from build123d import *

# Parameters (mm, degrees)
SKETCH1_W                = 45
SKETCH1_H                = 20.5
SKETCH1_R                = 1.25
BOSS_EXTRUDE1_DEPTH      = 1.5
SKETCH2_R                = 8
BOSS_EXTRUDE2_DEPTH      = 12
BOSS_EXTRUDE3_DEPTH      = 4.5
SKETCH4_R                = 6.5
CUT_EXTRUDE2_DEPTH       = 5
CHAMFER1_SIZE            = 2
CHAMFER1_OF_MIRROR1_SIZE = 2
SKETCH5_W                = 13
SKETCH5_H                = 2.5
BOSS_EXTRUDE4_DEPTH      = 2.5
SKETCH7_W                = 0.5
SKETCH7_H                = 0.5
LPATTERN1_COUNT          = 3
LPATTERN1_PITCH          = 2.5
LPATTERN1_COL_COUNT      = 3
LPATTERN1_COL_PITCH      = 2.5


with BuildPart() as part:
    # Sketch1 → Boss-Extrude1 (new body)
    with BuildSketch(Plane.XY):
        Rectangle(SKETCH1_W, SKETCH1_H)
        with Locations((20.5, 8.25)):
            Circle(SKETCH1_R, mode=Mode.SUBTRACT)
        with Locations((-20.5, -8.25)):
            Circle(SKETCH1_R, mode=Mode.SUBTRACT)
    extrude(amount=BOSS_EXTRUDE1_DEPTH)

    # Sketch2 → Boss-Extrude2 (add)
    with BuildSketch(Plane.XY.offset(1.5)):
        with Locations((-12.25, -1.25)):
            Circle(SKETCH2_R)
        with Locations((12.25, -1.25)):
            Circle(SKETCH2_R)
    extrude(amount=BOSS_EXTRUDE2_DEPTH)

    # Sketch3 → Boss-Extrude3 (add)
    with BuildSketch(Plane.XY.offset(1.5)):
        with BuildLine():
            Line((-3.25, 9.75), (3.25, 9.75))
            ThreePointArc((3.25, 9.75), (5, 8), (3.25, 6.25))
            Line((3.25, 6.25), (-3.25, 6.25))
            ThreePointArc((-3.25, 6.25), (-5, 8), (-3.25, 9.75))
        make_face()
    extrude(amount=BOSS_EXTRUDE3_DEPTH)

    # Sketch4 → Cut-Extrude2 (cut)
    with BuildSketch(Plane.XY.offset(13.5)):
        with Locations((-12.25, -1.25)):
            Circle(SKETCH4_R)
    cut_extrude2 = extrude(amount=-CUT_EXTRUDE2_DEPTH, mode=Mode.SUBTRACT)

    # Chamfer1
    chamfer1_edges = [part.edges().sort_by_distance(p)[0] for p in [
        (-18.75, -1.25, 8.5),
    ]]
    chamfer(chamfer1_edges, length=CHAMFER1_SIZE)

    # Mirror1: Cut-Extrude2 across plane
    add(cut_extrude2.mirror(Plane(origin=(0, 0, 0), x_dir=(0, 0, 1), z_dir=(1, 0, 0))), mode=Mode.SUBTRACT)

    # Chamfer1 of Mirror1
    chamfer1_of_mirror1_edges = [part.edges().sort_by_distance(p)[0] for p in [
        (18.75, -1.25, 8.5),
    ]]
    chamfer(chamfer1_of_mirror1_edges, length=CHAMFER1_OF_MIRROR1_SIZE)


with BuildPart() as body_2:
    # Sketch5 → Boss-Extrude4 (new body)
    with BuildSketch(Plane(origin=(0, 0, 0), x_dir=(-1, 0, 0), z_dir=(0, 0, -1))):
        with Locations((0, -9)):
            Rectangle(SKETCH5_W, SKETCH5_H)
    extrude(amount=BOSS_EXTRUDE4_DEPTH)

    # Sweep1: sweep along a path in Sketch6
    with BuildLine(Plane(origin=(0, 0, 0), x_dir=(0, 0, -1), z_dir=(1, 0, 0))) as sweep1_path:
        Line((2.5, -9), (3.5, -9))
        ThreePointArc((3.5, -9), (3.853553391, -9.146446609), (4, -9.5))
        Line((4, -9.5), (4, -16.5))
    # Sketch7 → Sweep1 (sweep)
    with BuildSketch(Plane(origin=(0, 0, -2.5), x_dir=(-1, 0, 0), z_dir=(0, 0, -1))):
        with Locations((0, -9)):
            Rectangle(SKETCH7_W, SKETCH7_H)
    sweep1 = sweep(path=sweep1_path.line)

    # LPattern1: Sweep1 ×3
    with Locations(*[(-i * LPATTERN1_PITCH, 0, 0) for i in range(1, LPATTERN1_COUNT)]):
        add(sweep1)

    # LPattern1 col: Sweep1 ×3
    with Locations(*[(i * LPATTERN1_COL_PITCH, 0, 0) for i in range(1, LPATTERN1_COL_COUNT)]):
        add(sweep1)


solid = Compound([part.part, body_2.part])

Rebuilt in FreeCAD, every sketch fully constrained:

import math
import FreeCAD as App
import Part
import Sketcher
Q = App.Units.Quantity


def edges_at(feature, points):
    """Names of the edges that pass closest to the given points."""
    edges = feature.Shape.Edges
    near = lambda p: min(range(len(edges)), key=lambda i: edges[i].distToShape(Part.Vertex(*p))[0])
    return sorted({f"Edge{near(p) + 1}" for p in points})

doc = App.newDocument("Part")
body = doc.addObject("PartDesign::Body", "Body")

sketch1 = doc.addObject("Sketcher::SketchObject", "Sketch")
body.addObject(sketch1)
sketch1.AttachmentSupport = (doc.XY_Plane, [""])
sketch1.MapMode = "FlatFace"
sketch1.addGeometry(Part.LineSegment(App.Vector(-22.5, 10.2, 0), App.Vector(-22.5, -10.2, 0)), False)
sketch1.addGeometry(Part.LineSegment(App.Vector(-22.5, -10.2, 0), App.Vector(22.5, -10.2, 0)), False)
sketch1.addGeometry(Part.LineSegment(App.Vector(22.5, -10.2, 0), App.Vector(22.5, 10.2, 0)), False)
sketch1.addGeometry(Part.LineSegment(App.Vector(22.5, 10.2, 0), App.Vector(-22.5, 10.2, 0)), False)
sketch1.addGeometry(Part.Circle(App.Vector(-20.5, -8.2, 0), App.Vector(0, 0, 1), 1.2), False)
sketch1.addGeometry(Part.Circle(App.Vector(20.5, 8.2, 0), App.Vector(0, 0, 1), 1.2), False)
sketch1.addConstraint(Sketcher.Constraint("Coincident", 0, 2, 1, 1))
sketch1.addConstraint(Sketcher.Constraint("Coincident", 1, 2, 2, 1))
sketch1.addConstraint(Sketcher.Constraint("Coincident", 2, 2, 3, 1))
sketch1.addConstraint(Sketcher.Constraint("Coincident", 3, 2, 0, 1))
sketch1.addConstraint(Sketcher.Constraint("Vertical", 0))
sketch1.addConstraint(Sketcher.Constraint("Horizontal", 1))
sketch1.addConstraint(Sketcher.Constraint("Vertical", 2))
sketch1.addConstraint(Sketcher.Constraint("Horizontal", 3))
sketch1.addConstraint(Sketcher.Constraint("Equal", 4, 5))
sketch1.addConstraint(Sketcher.Constraint("Symmetric", 4, 3, 5, 3, -1, 1))
sketch1.addConstraint(Sketcher.Constraint("Symmetric", 0, 2, 2, 2, -1, 1))
sketch1.addConstraint(Sketcher.Constraint("Diameter", 4, Q("2.5 mm")))
sketch1.addConstraint(Sketcher.Constraint("DistanceX", 1, 1, 1, 2, Q("45 mm")))
sketch1.addConstraint(Sketcher.Constraint("DistanceY", 0, 2, 0, 1, Q("20.5 mm")))
sketch1.addConstraint(Sketcher.Constraint("DistanceX", 4, 3, 5, 3, Q("41 mm")))
sketch1.addConstraint(Sketcher.Constraint("DistanceY", 0, 2, 4, 3, Q("2 mm")))
pad1 = doc.addObject("PartDesign::Pad", "Pad")
body.addObject(pad1)
pad1.Profile = sketch1
pad1.Length = 1.5

sketch2 = doc.addObject("Sketcher::SketchObject", "Sketch001")
body.addObject(sketch2)
sketch2.AttachmentSupport = (doc.XY_Plane, [""])
sketch2.MapMode = "FlatFace"
sketch2.AttachmentOffset = App.Placement(App.Vector(0, 0, 1.5), App.Rotation())
sketch2.addGeometry(Part.Circle(App.Vector(-12, -1, 0), App.Vector(0, 0, 1), 8), False)
sketch2.addGeometry(Part.Circle(App.Vector(12, -1, 0), App.Vector(0, 0, 1), 8), False)
sketch2.addConstraint(Sketcher.Constraint("Equal", 0, 1))
sketch2.addConstraint(Sketcher.Constraint("Symmetric", 0, 3, 1, 3, -2))
sketch2.addConstraint(Sketcher.Constraint("Diameter", 0, Q("16 mm")))
sketch2.addConstraint(Sketcher.Constraint("DistanceX", 0, 3, 1, 3, Q("24.5 mm")))
sketch2.addConstraint(Sketcher.Constraint("DistanceY", 0, 3, -1, 1, Q("1.25 mm")))
pad2 = doc.addObject("PartDesign::Pad", "Pad001")
body.addObject(pad2)
pad2.Profile = sketch2
pad2.Length = 12

sketch3 = doc.addObject("Sketcher::SketchObject", "Sketch002")
body.addObject(sketch3)
sketch3.AttachmentSupport = (doc.XY_Plane, [""])
sketch3.MapMode = "FlatFace"
sketch3.AttachmentOffset = App.Placement(App.Vector(0, 0, 1.5), App.Rotation())
sketch3.addGeometry(Part.LineSegment(App.Vector(3.2, 9.8, 0), App.Vector(-3.2, 9.8, 0)), False)
sketch3.addGeometry(Part.ArcOfCircle(Part.Circle(App.Vector(-3.2, 8, 0), App.Vector(0, 0, 1), 1.8), math.radians(90), math.radians(270)), False)
sketch3.addGeometry(Part.LineSegment(App.Vector(-3.2, 6.2, 0), App.Vector(3.2, 6.2, 0)), False)
sketch3.addGeometry(Part.ArcOfCircle(Part.Circle(App.Vector(3.2, 8, 0), App.Vector(0, 0, 1), 1.8), math.radians(-90), math.radians(90)), False)
sketch3.addConstraint(Sketcher.Constraint("Tangent", 0, 2, 1, 1))
sketch3.addConstraint(Sketcher.Constraint("Tangent", 1, 2, 2, 1))
sketch3.addConstraint(Sketcher.Constraint("Tangent", 2, 2, 3, 1))
sketch3.addConstraint(Sketcher.Constraint("Tangent", 3, 2, 0, 1))
sketch3.addConstraint(Sketcher.Constraint("Horizontal", 0))
sketch3.addConstraint(Sketcher.Constraint("Horizontal", 2))
sketch3.addConstraint(Sketcher.Constraint("Radius", 1, Q("1.75 mm")))
sketch3.addConstraint(Sketcher.Constraint("DistanceX", 0, 2, 0, 1, Q("6.5 mm")))
sketch3.addConstraint(Sketcher.Constraint("DistanceY", -1, 1, 1, 3, Q("8 mm")))
sketch3.addConstraint(Sketcher.Constraint("DistanceX", 1, 3, -1, 1, Q("3.25 mm")))
pad3 = doc.addObject("PartDesign::Pad", "Pad002")
body.addObject(pad3)
pad3.Profile = sketch3
pad3.Length = 4.5

sketch4 = doc.addObject("Sketcher::SketchObject", "Sketch003")
body.addObject(sketch4)
sketch4.AttachmentSupport = (doc.XY_Plane, [""])
sketch4.MapMode = "FlatFace"
sketch4.AttachmentOffset = App.Placement(App.Vector(0, 0, 13.5), App.Rotation())
sketch4.addGeometry(Part.Circle(App.Vector(-12, -1, 0), App.Vector(0, 0, 1), 6), False)
sketch4.addConstraint(Sketcher.Constraint("Diameter", 0, Q("13 mm")))
sketch4.addConstraint(Sketcher.Constraint("DistanceX", 0, 3, -1, 1, Q("12.25 mm")))
sketch4.addConstraint(Sketcher.Constraint("DistanceY", 0, 3, -1, 1, Q("1.25 mm")))
pocket1 = doc.addObject("PartDesign::Pocket", "Pocket")
body.addObject(pocket1)
pocket1.Profile = sketch4
pocket1.Length = 5
doc.recompute()

chamfer = doc.addObject("PartDesign::Chamfer", "Chamfer")
body.addObject(chamfer)
chamfer.Base = (pocket1, edges_at(pocket1, [(-18.75, -1.25, 8.5)]))
chamfer.Size = 2
doc.recompute()

mirrored = doc.addObject("PartDesign::Mirrored", "Mirrored")
body.addObject(mirrored)
mirrored.Originals = [pocket1]
mirrored.MirrorPlane = (doc.YZ_Plane, [""])
body.Tip = mirrored
doc.recompute()

chamfer2 = doc.addObject("PartDesign::Chamfer", "Chamfer001")
body.addObject(chamfer2)
chamfer2.Base = (mirrored, edges_at(mirrored, [(18.75, -1.25, 8.5)]))
chamfer2.Size = 2
body2 = doc.addObject("PartDesign::Body", "Body001")

sketch5 = doc.addObject("Sketcher::SketchObject", "Sketch004")
body2.addObject(sketch5)
sketch5.AttachmentSupport = (doc.getObject("XY_Plane001"), [""])
sketch5.MapMode = "FlatFace"
sketch5.addGeometry(Part.LineSegment(App.Vector(6.5, -7.8, 0), App.Vector(6.5, -10.2, 0)), False)
sketch5.addGeometry(Part.LineSegment(App.Vector(6.5, -10.2, 0), App.Vector(-6.5, -10.2, 0)), False)
sketch5.addGeometry(Part.LineSegment(App.Vector(-6.5, -10.2, 0), App.Vector(-6.5, -7.8, 0)), False)
sketch5.addGeometry(Part.LineSegment(App.Vector(-6.5, -7.8, 0), App.Vector(6.5, -7.8, 0)), False)
sketch5.addConstraint(Sketcher.Constraint("Coincident", 0, 2, 1, 1))
sketch5.addConstraint(Sketcher.Constraint("Coincident", 1, 2, 2, 1))
sketch5.addConstraint(Sketcher.Constraint("Coincident", 2, 2, 3, 1))
sketch5.addConstraint(Sketcher.Constraint("Coincident", 3, 2, 0, 1))
sketch5.addConstraint(Sketcher.Constraint("Vertical", 0))
sketch5.addConstraint(Sketcher.Constraint("Horizontal", 1))
sketch5.addConstraint(Sketcher.Constraint("Vertical", 2))
sketch5.addConstraint(Sketcher.Constraint("Horizontal", 3))
sketch5.addConstraint(Sketcher.Constraint("DistanceX", 1, 2, 1, 1, Q("13 mm")))
sketch5.addConstraint(Sketcher.Constraint("DistanceY", 0, 2, 0, 1, Q("2.5 mm")))
sketch5.addConstraint(Sketcher.Constraint("DistanceX", -1, 1, 0, 2, Q("6.5 mm")))
sketch5.addConstraint(Sketcher.Constraint("DistanceY", 0, 2, -1, 1, Q("10.25 mm")))
pad4 = doc.addObject("PartDesign::Pad", "Pad003")
body2.addObject(pad4)
pad4.Profile = sketch5
pad4.Length = 2.5
pad4.Reversed = True

sketch6 = doc.addObject("Sketcher::SketchObject", "Sketch005")
body2.addObject(sketch6)
sketch6.AttachmentSupport = (doc.getObject("XY_Plane001"), [""])
sketch6.MapMode = "FlatFace"
sketch6.AttachmentOffset = App.Placement(App.Vector(0, 0, -2.5), App.Rotation())
sketch6.addGeometry(Part.LineSegment(App.Vector(0.2, -8.8, 0), App.Vector(0.2, -9.2, 0)), False)
sketch6.addGeometry(Part.LineSegment(App.Vector(0.2, -9.2, 0), App.Vector(-0.2, -9.2, 0)), False)
sketch6.addGeometry(Part.LineSegment(App.Vector(-0.2, -9.2, 0), App.Vector(-0.2, -8.8, 0)), False)
sketch6.addGeometry(Part.LineSegment(App.Vector(-0.2, -8.8, 0), App.Vector(0.2, -8.8, 0)), False)
sketch6.addConstraint(Sketcher.Constraint("Coincident", 0, 2, 1, 1))
sketch6.addConstraint(Sketcher.Constraint("Coincident", 1, 2, 2, 1))
sketch6.addConstraint(Sketcher.Constraint("Coincident", 2, 2, 3, 1))
sketch6.addConstraint(Sketcher.Constraint("Coincident", 3, 2, 0, 1))
sketch6.addConstraint(Sketcher.Constraint("Vertical", 0))
sketch6.addConstraint(Sketcher.Constraint("Horizontal", 1))
sketch6.addConstraint(Sketcher.Constraint("Vertical", 2))
sketch6.addConstraint(Sketcher.Constraint("Horizontal", 3))
sketch6.addConstraint(Sketcher.Constraint("Equal", 3, 0))
sketch6.addConstraint(Sketcher.Constraint("DistanceX", 1, 2, 1, 1, Q("0.5 mm")))
sketch6.addConstraint(Sketcher.Constraint("DistanceX", -1, 1, 0, 2, Q("0.25 mm")))
sketch6.addConstraint(Sketcher.Constraint("DistanceY", 0, 2, -1, 1, Q("9.25 mm")))

sketch7 = doc.addObject("Sketcher::SketchObject", "Sketch006")
body2.addObject(sketch7)
sketch7.AttachmentSupport = (doc.getObject("YZ_Plane001"), [""])
sketch7.MapMode = "FlatFace"
sketch7.addGeometry(Part.LineSegment(App.Vector(-9, -2.5, 0), App.Vector(-9, -3.5, 0)), False)
sketch7.addGeometry(Part.ArcOfCircle(Part.Circle(App.Vector(-9.5, -3.5, 0), App.Vector(0, 0, 1), 0.5), math.radians(-90), math.radians(0)), False)
sketch7.addGeometry(Part.LineSegment(App.Vector(-9.5, -4, 0), App.Vector(-16.5, -4, 0)), False)
sketch7.addConstraint(Sketcher.Constraint("Tangent", 0, 2, 1, 2))
sketch7.addConstraint(Sketcher.Constraint("Tangent", 1, 1, 2, 1))
sketch7.addConstraint(Sketcher.Constraint("Vertical", 0))
sketch7.addConstraint(Sketcher.Constraint("Horizontal", 2))
sketch7.addConstraint(Sketcher.Constraint("Radius", 1, Q("0.5 mm")))
sketch7.addConstraint(Sketcher.Constraint("DistanceX", 2, 2, 2, 1, Q("7 mm")))
sketch7.addConstraint(Sketcher.Constraint("DistanceY", 0, 2, 0, 1, Q("1 mm")))
sketch7.addConstraint(Sketcher.Constraint("DistanceX", 0, 1, -1, 1, Q("9 mm")))
sketch7.addConstraint(Sketcher.Constraint("DistanceY", 1, 1, -1, 1, Q("4 mm")))
doc.recompute()

additivepipe = doc.addObject("PartDesign::AdditivePipe", "AdditivePipe")
body2.addObject(additivepipe)
additivepipe.Profile = sketch6
additivepipe.Spine = (sketch7, ["Edge1", "Edge2", "Edge3"])
doc.recompute()

linearpattern = doc.addObject("PartDesign::LinearPattern", "LinearPattern")
body2.addObject(linearpattern)
linearpattern.Originals = [additivepipe]
linearpattern.Direction = (doc.getObject("X_Axis001"), [""])
linearpattern.Mode = "offset"
linearpattern.Offset = 2.5
linearpattern.Occurrences = 3
linearpattern.Reversed = True
body2.Tip = linearpattern
doc.recompute()

linearpattern2 = doc.addObject("PartDesign::LinearPattern", "LinearPattern001")
body2.addObject(linearpattern2)
linearpattern2.Originals = [additivepipe]
linearpattern2.Direction = (doc.getObject("X_Axis001"), [""])
linearpattern2.Mode = "offset"
linearpattern2.Offset = 2.5
linearpattern2.Occurrences = 3
body2.Tip = linearpattern2

doc.recompute()
